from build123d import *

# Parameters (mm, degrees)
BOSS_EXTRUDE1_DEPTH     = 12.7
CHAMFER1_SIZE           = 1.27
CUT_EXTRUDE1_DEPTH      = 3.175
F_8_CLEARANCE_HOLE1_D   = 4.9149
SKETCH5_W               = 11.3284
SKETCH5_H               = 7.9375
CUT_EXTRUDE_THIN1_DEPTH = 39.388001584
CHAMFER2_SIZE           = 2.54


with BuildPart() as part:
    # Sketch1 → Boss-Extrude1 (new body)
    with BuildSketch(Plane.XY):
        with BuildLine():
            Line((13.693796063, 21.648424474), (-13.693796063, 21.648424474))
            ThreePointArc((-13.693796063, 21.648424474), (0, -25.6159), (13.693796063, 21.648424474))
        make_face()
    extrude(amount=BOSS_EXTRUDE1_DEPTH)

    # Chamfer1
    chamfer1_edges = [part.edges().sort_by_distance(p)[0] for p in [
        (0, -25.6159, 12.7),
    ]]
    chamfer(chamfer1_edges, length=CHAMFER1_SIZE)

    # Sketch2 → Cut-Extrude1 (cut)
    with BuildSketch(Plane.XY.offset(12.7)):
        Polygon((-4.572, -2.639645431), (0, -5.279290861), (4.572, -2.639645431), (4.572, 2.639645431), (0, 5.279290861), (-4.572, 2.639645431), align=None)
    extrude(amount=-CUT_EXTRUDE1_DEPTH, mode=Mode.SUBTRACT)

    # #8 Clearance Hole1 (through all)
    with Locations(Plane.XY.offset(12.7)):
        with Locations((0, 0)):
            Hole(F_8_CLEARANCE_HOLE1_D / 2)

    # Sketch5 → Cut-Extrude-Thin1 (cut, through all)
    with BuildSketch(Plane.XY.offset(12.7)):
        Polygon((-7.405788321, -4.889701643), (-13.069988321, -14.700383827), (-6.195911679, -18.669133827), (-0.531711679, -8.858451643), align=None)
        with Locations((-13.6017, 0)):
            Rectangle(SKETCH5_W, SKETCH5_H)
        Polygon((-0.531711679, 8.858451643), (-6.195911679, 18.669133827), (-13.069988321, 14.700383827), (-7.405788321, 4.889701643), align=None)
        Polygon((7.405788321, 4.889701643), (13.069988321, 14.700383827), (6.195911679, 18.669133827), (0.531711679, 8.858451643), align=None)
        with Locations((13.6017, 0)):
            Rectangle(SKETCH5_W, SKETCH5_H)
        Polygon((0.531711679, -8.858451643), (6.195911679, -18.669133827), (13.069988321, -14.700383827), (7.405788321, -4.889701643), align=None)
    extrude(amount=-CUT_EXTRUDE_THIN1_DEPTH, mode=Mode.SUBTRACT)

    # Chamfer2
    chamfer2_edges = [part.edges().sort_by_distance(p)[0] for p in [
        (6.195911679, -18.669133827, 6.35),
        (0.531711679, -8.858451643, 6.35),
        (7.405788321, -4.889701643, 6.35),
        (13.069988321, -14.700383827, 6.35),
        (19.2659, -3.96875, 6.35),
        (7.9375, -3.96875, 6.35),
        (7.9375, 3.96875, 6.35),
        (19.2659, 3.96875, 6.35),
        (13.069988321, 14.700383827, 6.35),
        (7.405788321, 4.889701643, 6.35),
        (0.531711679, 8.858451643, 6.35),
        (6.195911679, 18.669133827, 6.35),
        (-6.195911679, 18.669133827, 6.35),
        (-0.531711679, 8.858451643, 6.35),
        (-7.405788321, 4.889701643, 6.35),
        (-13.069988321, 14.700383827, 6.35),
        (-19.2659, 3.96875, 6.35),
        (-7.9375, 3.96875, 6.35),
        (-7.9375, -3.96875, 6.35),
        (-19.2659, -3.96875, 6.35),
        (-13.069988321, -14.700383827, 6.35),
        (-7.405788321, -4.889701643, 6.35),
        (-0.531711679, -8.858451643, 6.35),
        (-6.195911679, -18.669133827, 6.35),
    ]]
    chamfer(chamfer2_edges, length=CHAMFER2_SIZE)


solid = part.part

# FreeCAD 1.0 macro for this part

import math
import FreeCAD as App
import Part
import Sketcher

V = App.Vector
Q = App.Units.Quantity


def edges_at(feature, points):
    """Names of the edges that pass closest to the given points."""
    edges = feature.Shape.Edges
    near = lambda p: min(range(len(edges)), key=lambda i: edges[i].distToShape(Part.Vertex(*p))[0])
    return sorted({f"Edge{near(p) + 1}" for p in points})

doc = App.newDocument("Part")
body = doc.addObject("PartDesign::Body", "Body")

sketch1 = doc.addObject("Sketcher::SketchObject", "Sketch")
body.addObject(sketch1)
sketch1.AttachmentSupport = (doc.XY_Plane, [""])
sketch1.MapMode = "FlatFace"
sketch1.addGeometry(Part.LineSegment(V(14, 22, 0), V(-14, 22, 0)), False)
sketch1.addGeometry(Part.ArcOfCircle(Part.Circle(V(0, 0, 0), V(0, 0, 1), 26), math.radians(122), math.radians(418)), False)
sketch1.addConstraint(Sketcher.Constraint("Coincident", 0, 1, 1, 2))
sketch1.addConstraint(Sketcher.Constraint("Coincident", 1, 1, 0, 2))
sketch1.addConstraint(Sketcher.Constraint("Horizontal", 0))
sketch1.addConstraint(Sketcher.Constraint("Coincident", 1, 3, -1, 1))
sketch1.addConstraint(Sketcher.Constraint("Radius", 1, Q("1.0085 in")))
sketch1.addConstraint(Sketcher.Constraint("DistanceY", -1, 1, 0, 1, Q("0.8523002 in")))
pad1 = doc.addObject("PartDesign::Pad", "Pad")
body.addObject(pad1)
pad1.Profile = sketch1
pad1.Length = Q("0.5 in")
doc.recompute()

chamfer = doc.addObject("PartDesign::Chamfer", "Chamfer")
body.addObject(chamfer)
chamfer.Base = (pad1, edges_at(pad1, [(0, -25.616, 12.7)]))
chamfer.Size = Q("0.05 in")

sketch2 = doc.addObject("Sketcher::SketchObject", "Sketch001")
body.addObject(sketch2)
sketch2.AttachmentSupport = (doc.XY_Plane, [""])
sketch2.MapMode = "FlatFace"
sketch2.AttachmentOffset = App.Placement(V(0, 0, 0.5 * 25.4), App.Rotation())
sketch2.addGeometry(Part.LineSegment(V(-5, -3, 0), V(0, -5, 0)), False)
sketch2.addGeometry(Part.LineSegment(V(0, -5, 0), V(5, -3, 0)), False)
sketch2.addGeometry(Part.LineSegment(V(5, -3, 0), V(5, 3, 0)), False)
sketch2.addGeometry(Part.LineSegment(V(5, 3, 0), V(0, 5, 0)), False)
sketch2.addGeometry(Part.LineSegment(V(0, 5, 0), V(-5, 3, 0)), False)
sketch2.addGeometry(Part.LineSegment(V(-5, 3, 0), V(-5, -3, 0)), False)
sketch2.addConstraint(Sketcher.Constraint("Coincident", 0, 2, 1, 1))
sketch2.addConstraint(Sketcher.Constraint("Coincident", 1, 2, 2, 1))
sketch2.addConstraint(Sketcher.Constraint("Coincident", 2, 2, 3, 1))
sketch2.addConstraint(Sketcher.Constraint("Coincident", 3, 2, 4, 1))
sketch2.addConstraint(Sketcher.Constraint("Coincident", 4, 2, 5, 1))
sketch2.addConstraint(Sketcher.Constraint("Coincident", 5, 2, 0, 1))
sketch2.addConstraint(Sketcher.Constraint("Vertical", 2))
sketch2.addConstraint(Sketcher.Constraint("Vertical", 5))
sketch2.addConstraint(Sketcher.Constraint("Symmetric", 0, 2, 3, 2, -1, 1))
sketch2.addConstraint(Sketcher.Constraint("Symmetric", 1, 2, 4, 2, -1, 1))
sketch2.addConstraint(Sketcher.Constraint("PointOnObject", 0, 2, -2))
sketch2.addConstraint(Sketcher.Constraint("Parallel", 0, 3))
sketch2.addConstraint(Sketcher.Constraint("Horizontal", 2, 2, 4, 2))
sketch2.addConstraint(Sketcher.Constraint("Angle", 0, Q("-30 deg")))
sketch2.addConstraint(Sketcher.Constraint("DistanceX", -1, 1, 1, 2, Q("0.18 in")))
sketch2.addConstraint(Sketcher.Constraint("DistanceY", 2, 1, 2, 2, 5.279291))
pocket1 = doc.addObject("PartDesign::Pocket", "Pocket")
body.addObject(pocket1)
pocket1.Profile = sketch2
pocket1.Length = Q("0.125 in")

sketch3 = doc.addObject("Sketcher::SketchObject", "Sketch002")
body.addObject(sketch3)
sketch3.AttachmentSupport = (doc.XY_Plane, [""])
sketch3.MapMode = "FlatFace"
sketch3.AttachmentOffset = App.Placement(V(0, 0, 0.5 * 25.4), App.Rotation())
sketch3.addGeometry(Part.Circle(V(0, 0, 0), V(0, 0, 1), 2.5), False)
sketch3.addConstraint(Sketcher.Constraint("Coincident", 0, 3, -1, 1))
sketch3.addConstraint(Sketcher.Constraint("Diameter", 0, Q("0.1935 in")))
doc.recompute()
hole = doc.addObject("PartDesign::Hole", "Hole")
body.addObject(hole)
hole.Profile = sketch3
hole.ThreadType = "None"
hole.Diameter = Q("0.1935 in")
hole.DepthType = "ThroughAll"

sketch4 = doc.addObject("Sketcher::SketchObject", "Sketch003")
body.addObject(sketch4)
sketch4.AttachmentSupport = (doc.XY_Plane, [""])
sketch4.MapMode = "FlatFace"
sketch4.AttachmentOffset = App.Placement(V(0, 0, 0.5 * 25.4), App.Rotation())
sketch4.addGeometry(Part.LineSegment(V(-7, -5, 0), V(-13, -15, 0)), False)
sketch4.addGeometry(Part.LineSegment(V(-13, -15, 0), V(-6, -19, 0)), False)
sketch4.addGeometry(Part.LineSegment(V(-6, -19, 0), V(-1, -9, 0)), False)
sketch4.addGeometry(Part.LineSegment(V(-1, -9, 0), V(-7, -5, 0)), False)
sketch4.addGeometry(Part.LineSegment(V(-19, 4, 0), V(-19, -4, 0)), False)
sketch4.addGeometry(Part.LineSegment(V(-19, -4, 0), V(-8, -4, 0)), False)
sketch4.addGeometry(Part.LineSegment(V(-8, -4, 0), V(-8, 4, 0)), False)
sketch4.addGeometry(Part.LineSegment(V(-8, 4, 0), V(-19, 4, 0)), False)
sketch4.addGeometry(Part.LineSegment(V(-1, 9, 0), V(-6, 19, 0)), False)
sketch4.addGeometry(Part.LineSegment(V(-6, 19, 0), V(-13, 15, 0)), False)
sketch4.addGeometry(Part.LineSegment(V(-13, 15, 0), V(-7, 5, 0)), False)
sketch4.addGeometry(Part.LineSegment(V(-7, 5, 0), V(-1, 9, 0)), False)
sketch4.addGeometry(Part.LineSegment(V(7, 5, 0), V(13, 15, 0)), False)
sketch4.addGeometry(Part.LineSegment(V(13, 15, 0), V(6, 19, 0)), False)
sketch4.addGeometry(Part.LineSegment(V(6, 19, 0), V(1, 9, 0)), False)
sketch4.addGeometry(Part.LineSegment(V(1, 9, 0), V(7, 5, 0)), False)
sketch4.addGeometry(Part.LineSegment(V(8, 4, 0), V(8, -4, 0)), False)
sketch4.addGeometry(Part.LineSegment(V(8, -4, 0), V(19, -4, 0)), False)
sketch4.addGeometry(Part.LineSegment(V(19, -4, 0), V(19, 4, 0)), False)
sketch4.addGeometry(Part.LineSegment(V(19, 4, 0), V(8, 4, 0)), False)
sketch4.addGeometry(Part.LineSegment(V(1, -9, 0), V(6, -19, 0)), False)
sketch4.addGeometry(Part.LineSegment(V(6, -19, 0), V(13, -15, 0)), False)
sketch4.addGeometry(Part.LineSegment(V(13, -15, 0), V(7, -5, 0)), False)
sketch4.addGeometry(Part.LineSegment(V(7, -5, 0), V(1, -9, 0)), False)
sketch4.addConstraint(Sketcher.Constraint("Coincident", 0, 2, 1, 1))
sketch4.addConstraint(Sketcher.Constraint("Coincident", 1, 2, 2, 1))
sketch4.addConstraint(Sketcher.Constraint("Coincident", 2, 2, 3, 1))
sketch4.addConstraint(Sketcher.Constraint("Coincident", 3, 2, 0, 1))
sketch4.addConstraint(Sketcher.Constraint("Coincident", 4, 2, 5, 1))
sketch4.addConstraint(Sketcher.Constraint("Coincident", 5, 2, 6, 1))
sketch4.addConstraint(Sketcher.Constraint("Coincident", 6, 2, 7, 1))
sketch4.addConstraint(Sketcher.Constraint("Coincident", 7, 2, 4, 1))
sketch4.addConstraint(Sketcher.Constraint("Coincident", 8, 2, 9, 1))
sketch4.addConstraint(Sketcher.Constraint("Coincident", 9, 2, 10, 1))
sketch4.addConstraint(Sketcher.Constraint("Coincident", 10, 2, 11, 1))
sketch4.addConstraint(Sketcher.Constraint("Coincident", 11, 2, 8, 1))
sketch4.addConstraint(Sketcher.Constraint("Coincident", 12, 2, 13, 1))
sketch4.addConstraint(Sketcher.Constraint("Coincident", 13, 2, 14, 1))
sketch4.addConstraint(Sketcher.Constraint("Coincident", 14, 2, 15, 1))
sketch4.addConstraint(Sketcher.Constraint("Coincident", 15, 2, 12, 1))
sketch4.addConstraint(Sketcher.Constraint("Coincident", 16, 2, 17, 1))
sketch4.addConstraint(Sketcher.Constraint("Coincident", 17, 2, 18, 1))
sketch4.addConstraint(Sketcher.Constraint("Coincident", 18, 2, 19, 1))
sketch4.addConstraint(Sketcher.Constraint("Coincident", 19, 2, 16, 1))
sketch4.addConstraint(Sketcher.Constraint("Coincident", 20, 2, 21, 1))
sketch4.addConstraint(Sketcher.Constraint("Coincident", 21, 2, 22, 1))
sketch4.addConstraint(Sketcher.Constraint("Coincident", 22, 2, 23, 1))
sketch4.addConstraint(Sketcher.Constraint("Coincident", 23, 2, 20, 1))
sketch4.addConstraint(Sketcher.Constraint("Vertical", 4))
sketch4.addConstraint(Sketcher.Constraint("Horizontal", 5))
sketch4.addConstraint(Sketcher.Constraint("Vertical", 6))
sketch4.addConstraint(Sketcher.Constraint("Horizontal", 7))
sketch4.addConstraint(Sketcher.Constraint("Vertical", 16))
sketch4.addConstraint(Sketcher.Constraint("Horizontal", 17))
sketch4.addConstraint(Sketcher.Constraint("Vertical", 18))
sketch4.addConstraint(Sketcher.Constraint("Horizontal", 19))
sketch4.addConstraint(Sketcher.Constraint("Symmetric", 0, 2, 12, 2, -1, 1))
sketch4.addConstraint(Sketcher.Constraint("Symmetric", 1, 2, 13, 2, -1, 1))
sketch4.addConstraint(Sketcher.Constraint("Symmetric", 2, 2, 14, 2, -1, 1))
sketch4.addConstraint(Sketcher.Constraint("Symmetric", 3, 2, 15, 2, -1, 1))
sketch4.addConstraint(Sketcher.Constraint("Symmetric", 6, 2, 16, 2, -1, 1))
sketch4.addConstraint(Sketcher.Constraint("Symmetric", 4, 2, 18, 2, -1, 1))
sketch4.addConstraint(Sketcher.Constraint("Symmetric", 8, 2, 20, 2, -1, 1))
sketch4.addConstraint(Sketcher.Constraint("Symmetric", 9, 2, 21, 2, -1, 1))
sketch4.addConstraint(Sketcher.Constraint("Symmetric", 10, 2, 22, 2, -1, 1))
sketch4.addConstraint(Sketcher.Constraint("Symmetric", 11, 2, 23, 2, -1, 1))
sketch4.addConstraint(Sketcher.Constraint("Symmetric", 9, 2, 12, 2, -2))
sketch4.addConstraint(Sketcher.Constraint("Symmetric", 8, 2, 13, 2, -2))
sketch4.addConstraint(Sketcher.Constraint("Symmetric", 11, 2, 14, 2, -2))
sketch4.addConstraint(Sketcher.Constraint("Symmetric", 10, 2, 15, 2, -2))
sketch4.addConstraint(Sketcher.Constraint("Perpendicular", 0, 1))
sketch4.addConstraint(Sketcher.Constraint("Perpendicular", 1, 2))
sketch4.addConstraint(Sketcher.Constraint("Perpendicular", 2, 3))
sketch4.addConstraint(Sketcher.Constraint("Horizontal", 5, 2, 16, 2))
sketch4.addConstraint(Sketcher.Constraint("Angle", 0, Q("-120 deg")))
sketch4.addConstraint(Sketcher.Constraint("DistanceX", 5, 1, 5, 2, Q("0.446 in")))
sketch4.addConstraint(Sketcher.Constraint("DistanceY", 4, 2, 4, 1, Q("0.3125 in")))
sketch4.addConstraint(Sketcher.Constraint("Distance", 0, Q("0.446 in")))
sketch4.addConstraint(Sketcher.Constraint("Distance", 1, Q("0.3125 in")))
sketch4.addConstraint(Sketcher.Constraint("DistanceX", 5, 2, -1, 1, Q("0.3125 in")))
sketch4.addConstraint(Sketcher.Constraint("DistanceX", 10, 2, 14, 2, Q("0.3125 in")))
sketch4.addConstraint(Sketcher.Constraint("DistanceY", 3, 2, -1, 1, 4.889702))
pocket2 = doc.addObject("PartDesign::Pocket", "Pocket001")
body.addObject(pocket2)
pocket2.Profile = sketch4
pocket2.Type = "ThroughAll"
doc.recompute()

chamfer2 = doc.addObject("PartDesign::Chamfer", "Chamfer001")
body.addObject(chamfer2)
chamfer2.Base = (pocket2, edges_at(pocket2, [
    (6.196, -18.669, 6.35),
    (0.532, -8.858, 6.35),
    (7.406, -4.89, 6.35),
    (13.07, -14.7, 6.35),
    (19.266, -3.969, 6.35),
    (7.938, -3.969, 6.35),
    (7.938, 3.969, 6.35),
    (19.266, 3.969, 6.35),
    (13.07, 14.7, 6.35),
    (7.406, 4.89, 6.35),
    (0.532, 8.858, 6.35),
    (6.196, 18.669, 6.35),
    (-6.196, 18.669, 6.35),
    (-0.532, 8.858, 6.35),
    (-7.406, 4.89, 6.35),
    (-13.07, 14.7, 6.35),
    (-19.266, 3.969, 6.35),
    (-7.938, 3.969, 6.35),
    (-7.938, -3.969, 6.35),
    (-19.266, -3.969, 6.35),
    (-13.07, -14.7, 6.35),
    (-7.406, -4.89, 6.35),
    (-0.532, -8.858, 6.35),
    (-6.196, -18.669, 6.35),
]))
chamfer2.Size = Q("0.1 in")

doc.recompute()
